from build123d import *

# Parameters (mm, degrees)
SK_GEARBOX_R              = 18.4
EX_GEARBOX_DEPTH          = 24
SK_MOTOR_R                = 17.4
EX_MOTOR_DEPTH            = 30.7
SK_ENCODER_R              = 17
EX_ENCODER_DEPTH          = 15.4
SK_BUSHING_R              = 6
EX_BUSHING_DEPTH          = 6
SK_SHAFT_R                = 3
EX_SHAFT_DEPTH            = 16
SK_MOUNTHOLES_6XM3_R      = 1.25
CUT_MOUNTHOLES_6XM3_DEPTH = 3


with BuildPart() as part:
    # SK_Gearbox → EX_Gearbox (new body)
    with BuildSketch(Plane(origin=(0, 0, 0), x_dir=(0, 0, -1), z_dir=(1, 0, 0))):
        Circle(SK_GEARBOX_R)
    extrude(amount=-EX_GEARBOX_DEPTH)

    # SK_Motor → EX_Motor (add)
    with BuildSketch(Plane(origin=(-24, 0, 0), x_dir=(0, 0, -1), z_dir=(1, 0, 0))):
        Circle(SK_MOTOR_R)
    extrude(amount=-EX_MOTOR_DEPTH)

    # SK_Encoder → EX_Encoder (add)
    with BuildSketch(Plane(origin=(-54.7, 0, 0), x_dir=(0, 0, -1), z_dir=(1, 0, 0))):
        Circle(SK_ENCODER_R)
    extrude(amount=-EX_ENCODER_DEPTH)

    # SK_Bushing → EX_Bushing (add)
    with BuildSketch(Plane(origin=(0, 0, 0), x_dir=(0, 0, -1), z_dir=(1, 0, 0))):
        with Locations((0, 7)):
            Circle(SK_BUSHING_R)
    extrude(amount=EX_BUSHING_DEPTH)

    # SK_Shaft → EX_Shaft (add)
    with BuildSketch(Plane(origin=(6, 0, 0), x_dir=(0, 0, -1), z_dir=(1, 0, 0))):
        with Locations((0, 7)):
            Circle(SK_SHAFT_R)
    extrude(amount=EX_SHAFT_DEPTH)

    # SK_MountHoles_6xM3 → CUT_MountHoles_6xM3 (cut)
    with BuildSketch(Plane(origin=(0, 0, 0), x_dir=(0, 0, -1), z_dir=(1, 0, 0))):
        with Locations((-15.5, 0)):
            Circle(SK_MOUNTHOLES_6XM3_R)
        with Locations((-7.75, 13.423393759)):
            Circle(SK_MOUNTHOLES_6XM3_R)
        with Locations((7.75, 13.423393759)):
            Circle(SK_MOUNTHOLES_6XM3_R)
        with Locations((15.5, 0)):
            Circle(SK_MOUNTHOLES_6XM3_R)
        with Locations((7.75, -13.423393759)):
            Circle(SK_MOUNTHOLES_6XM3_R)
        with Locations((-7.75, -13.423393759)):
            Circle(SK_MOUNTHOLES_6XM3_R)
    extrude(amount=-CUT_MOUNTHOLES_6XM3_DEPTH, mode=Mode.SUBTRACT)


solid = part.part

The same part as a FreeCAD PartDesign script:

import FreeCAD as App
import Part
import Sketcher

V = App.Vector
Q = App.Units.Quantity

doc = App.newDocument("Part")
params = doc.addObject("Spreadsheet::Sheet", "Params")
for row, (alias, value) in enumerate([
    ("sketch1_diameter", "36.8 mm"),
    ("pad1_length", "24 mm"),
    ("sketch2_diameter", "34.8 mm"),
    ("pad2_length", "30.7 mm"),
    ("sketch3_diameter", "34 mm"),
    ("pad3_length", "15.4 mm"),
    ("sketch4_diameter", "12 mm"),
    ("pad4_length", "6 mm"),
    ("sketch5_diameter", "6 mm"),
    ("pad5_length", "16 mm"),
    ("sketch6_diameter", "2.5 mm"),
    ("pocket1_length", "3 mm"),
], start=1):
    params.set(f"A{row}", alias)
    params.set(f"B{row}", "=" + value)
    params.setAlias(f"B{row}", alias)

body = doc.addObject("PartDesign::Body", "Body")

sketch1 = doc.addObject("Sketcher::SketchObject", "Sketch")
body.addObject(sketch1)
sketch1.AttachmentSupport = (doc.YZ_Plane, [""])
sketch1.MapMode = "FlatFace"
sketch1.addGeometry(Part.Circle(V(0, 0, 0), V(0, 0, 1), 18), False)
sketch1.addConstraint([
    Sketcher.Constraint("Coincident", 0, 3, -1, 1),
    Sketcher.Constraint("Diameter", 0, Q("36.8 mm")),
])
sketch1.setExpression("Constraints[1]", "Params.sketch1_diameter")
pad1 = doc.addObject("PartDesign::Pad", "Pad")
body.addObject(pad1)
pad1.Profile = sketch1
pad1.setExpression("Length", "Params.pad1_length")
pad1.Reversed = True

sketch2 = doc.addObject("Sketcher::SketchObject", "Sketch001")
body.addObject(sketch2)
sketch2.AttachmentSupport = (doc.YZ_Plane, [""])
sketch2.MapMode = "FlatFace"
sketch2.AttachmentOffset = App.Placement(V(0, 0, -24), App.Rotation())
sketch2.addGeometry(Part.Circle(V(0, 0, 0), V(0, 0, 1), 17), False)
sketch2.addConstraint([
    Sketcher.Constraint("Coincident", 0, 3, -1, 1),
    Sketcher.Constraint("Diameter", 0, Q("34.8 mm")),
])
sketch2.setExpression("Constraints[1]", "Params.sketch2_diameter")
pad2 = doc.addObject("PartDesign::Pad", "Pad001")
body.addObject(pad2)
pad2.Profile = sketch2
pad2.setExpression("Length", "Params.pad2_length")
pad2.Reversed = True

sketch3 = doc.addObject("Sketcher::SketchObject", "Sketch002")
body.addObject(sketch3)
sketch3.AttachmentSupport = (doc.YZ_Plane, [""])
sketch3.MapMode = "FlatFace"
sketch3.AttachmentOffset = App.Placement(V(0, 0, -54.7), App.Rotation())
sketch3.addGeometry(Part.Circle(V(0, 0, 0), V(0, 0, 1), 17), False)
sketch3.addConstraint([
    Sketcher.Constraint("Coincident", 0, 3, -1, 1),
    Sketcher.Constraint("Diameter", 0, Q("34 mm")),
])
sketch3.setExpression("Constraints[1]", "Params.sketch3_diameter")
pad3 = doc.addObject("PartDesign::Pad", "Pad002")
body.addObject(pad3)
pad3.Profile = sketch3
pad3.setExpression("Length", "Params.pad3_length")
pad3.Reversed = True

sketch4 = doc.addObject("Sketcher::SketchObject", "Sketch003")
body.addObject(sketch4)
sketch4.AttachmentSupport = (doc.YZ_Plane, [""])
sketch4.MapMode = "FlatFace"
sketch4.addGeometry(Part.Circle(V(7, 0, 0), V(0, 0, 1), 6), False)
sketch4.addConstraint([
    Sketcher.Constraint("PointOnObject", 0, 3, -1),
    Sketcher.Constraint("Diameter", 0, Q("12 mm")),
    Sketcher.Constraint("DistanceX", -1, 1, 0, 3, Q("7 mm")),
])
sketch4.setExpression("Constraints[1]", "Params.sketch4_diameter")
pad4 = doc.addObject("PartDesign::Pad", "Pad003")
body.addObject(pad4)
pad4.Profile = sketch4
pad4.setExpression("Length", "Params.pad4_length")

sketch5 = doc.addObject("Sketcher::SketchObject", "Sketch004")
body.addObject(sketch5)
sketch5.AttachmentSupport = (doc.YZ_Plane, [""])
sketch5.MapMode = "FlatFace"
sketch5.AttachmentOffset = App.Placement(V(0, 0, 6), App.Rotation())
sketch5.addGeometry(Part.Circle(V(7, 0, 0), V(0, 0, 1), 3), False)
sketch5.addConstraint([
    Sketcher.Constraint("PointOnObject", 0, 3, -1),
    Sketcher.Constraint("Diameter", 0, Q("6 mm")),
    Sketcher.Constraint("DistanceX", -1, 1, 0, 3, Q("7 mm")),
])
sketch5.setExpression("Constraints[1]", "Params.sketch5_diameter")
pad5 = doc.addObject("PartDesign::Pad", "Pad004")
body.addObject(pad5)
pad5.Profile = sketch5
pad5.setExpression("Length", "Params.pad5_length")

sketch6 = doc.addObject("Sketcher::SketchObject", "Sketch005")
body.addObject(sketch6)
sketch6.AttachmentSupport = (doc.YZ_Plane, [""])
sketch6.MapMode = "FlatFace"
sketch6.addGeometry([
    Part.Circle(V(0, 15.5, 0), V(0, 0, 1), 1.2),
    Part.Circle(V(13.4, 7.8, 0), V(0, 0, 1), 1.2),
    Part.Circle(V(13.4, -7.8, 0), V(0, 0, 1), 1.2),
    Part.Circle(V(0, -15.5, 0), V(0, 0, 1), 1.2),
    Part.Circle(V(-13.4, -7.8, 0), V(0, 0, 1), 1.2),
    Part.Circle(V(-13.4, 7.8, 0), V(0, 0, 1), 1.2),
], False)
sketch6.addConstraint([
    Sketcher.Constraint("Equal", 0, 1),
    Sketcher.Constraint("Equal", 1, 2),
    Sketcher.Constraint("Equal", 2, 3),
    Sketcher.Constraint("Equal", 3, 4),
    Sketcher.Constraint("Equal", 4, 5),
    Sketcher.Constraint("Symmetric", 0, 3, 3, 3, -1, 1),
    Sketcher.Constraint("Symmetric", 1, 3, 4, 3, -1, 1),
    Sketcher.Constraint("Symmetric", 2, 3, 5, 3, -1, 1),
    Sketcher.Constraint("Symmetric", 2, 3, 4, 3, -2),
    Sketcher.Constraint("PointOnObject", 0, 3, -2),
    Sketcher.Constraint("Diameter", 0, Q("2.5 mm")),
    Sketcher.Constraint("DistanceY", 3, 3, 0, 3, Q("31 mm")),
    Sketcher.Constraint("DistanceY", 2, 3, 1, 3, Q("15.5 mm")),
    Sketcher.Constraint("DistanceX", -1, 1, 1, 3, Q("13.423394 mm")),
])
sketch6.setExpression("Constraints[10]", "Params.sketch6_diameter")
pocket1 = doc.addObject("PartDesign::Pocket", "Pocket")
body.addObject(pocket1)
pocket1.Profile = sketch6
pocket1.setExpression("Length", "Params.pocket1_length")

doc.recompute()
